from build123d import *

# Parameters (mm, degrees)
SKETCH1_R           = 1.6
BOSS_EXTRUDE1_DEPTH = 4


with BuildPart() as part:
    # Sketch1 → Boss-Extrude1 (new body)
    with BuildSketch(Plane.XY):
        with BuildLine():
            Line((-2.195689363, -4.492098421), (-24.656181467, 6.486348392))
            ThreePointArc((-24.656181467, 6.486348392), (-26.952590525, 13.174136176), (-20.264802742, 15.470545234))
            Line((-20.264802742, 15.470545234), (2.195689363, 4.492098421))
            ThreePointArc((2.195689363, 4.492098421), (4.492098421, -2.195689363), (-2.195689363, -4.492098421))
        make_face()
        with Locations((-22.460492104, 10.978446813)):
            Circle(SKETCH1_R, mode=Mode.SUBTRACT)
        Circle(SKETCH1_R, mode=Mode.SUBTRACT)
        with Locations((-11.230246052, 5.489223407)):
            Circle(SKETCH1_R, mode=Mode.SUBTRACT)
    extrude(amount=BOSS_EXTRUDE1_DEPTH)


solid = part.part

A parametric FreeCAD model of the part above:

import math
import FreeCAD as App
import Part
import Sketcher

V = App.Vector
Q = App.Units.Quantity

doc = App.newDocument("Part")
body = doc.addObject("PartDesign::Body", "Body")

sketch1 = doc.addObject("Sketcher::SketchObject", "Sketch")
body.addObject(sketch1)
sketch1.AttachmentSupport = (doc.XY_Plane, [""])
sketch1.MapMode = "FlatFace"
sketch1.addGeometry(Part.LineSegment(V(-24.656181, 6.486348, 0), V(-2.195689, -4.492098, 0)), False)
sketch1.addGeometry(Part.ArcOfCircle(Part.Circle(V(0, 0, 0), V(0, 0, 1), 5), math.radians(-116.048887), math.radians(63.951113)), False)
sketch1.addGeometry(Part.LineSegment(V(2.195689, 4.492098, 0), V(-20.264803, 15.470545, 0)), False)
sketch1.addGeometry(Part.ArcOfCircle(Part.Circle(V(-22.460492, 10.978447, 0), V(0, 0, 1), 5), math.radians(63.951113), math.radians(243.951113)), False)
sketch1.addGeometry(Part.Circle(V(0, 0, 0), V(0, 0, 1), 1.6), False)
sketch1.addGeometry(Part.Circle(V(-11.230246, 5.489223, 0), V(0, 0, 1), 1.6), False)
sketch1.addGeometry(Part.Circle(V(-22.460492, 10.978447, 0), V(0, 0, 1), 1.6), False)
sketch1.addConstraint(Sketcher.Constraint("Tangent", 0, 2, 1, 1))
sketch1.addConstraint(Sketcher.Constraint("Tangent", 1, 2, 2, 1))
sketch1.addConstraint(Sketcher.Constraint("Tangent", 2, 2, 3, 1))
sketch1.addConstraint(Sketcher.Constraint("Tangent", 3, 2, 0, 1))
sketch1.addConstraint(Sketcher.Constraint("Coincident", 1, 3, -1, 1))
sketch1.addConstraint(Sketcher.Constraint("Coincident", 4, 3, -1, 1))
sketch1.addConstraint(Sketcher.Constraint("Coincident", 6, 3, 3, 3))
sketch1.addConstraint(Sketcher.Constraint("Equal", 1, 3))
sketch1.addConstraint(Sketcher.Constraint("Equal", 4, 5))
sketch1.addConstraint(Sketcher.Constraint("Equal", 5, 6))
sketch1.addConstraint(Sketcher.Constraint("Radius", 1, Q("5 mm")))
sketch1.addConstraint(Sketcher.Constraint("Diameter", 4, Q("3.2 mm")))
sketch1.addConstraint(Sketcher.Constraint("Distance", 0, Q("25 mm")))
sketch1.addConstraint(Sketcher.Constraint("DistanceY", 0, 2, -1, 1, Q("4.492098 mm")))
sketch1.addConstraint(Sketcher.Constraint("DistanceY", 0, 2, 5, 3, Q("9.981322 mm")))
sketch1.addConstraint(Sketcher.Constraint("DistanceX", 5, 3, -1, 1, Q("11.230246 mm")))
pad1 = doc.addObject("PartDesign::Pad", "Pad")
body.addObject(pad1)
pad1.Profile = sketch1
pad1.Length = 4

doc.recompute()
